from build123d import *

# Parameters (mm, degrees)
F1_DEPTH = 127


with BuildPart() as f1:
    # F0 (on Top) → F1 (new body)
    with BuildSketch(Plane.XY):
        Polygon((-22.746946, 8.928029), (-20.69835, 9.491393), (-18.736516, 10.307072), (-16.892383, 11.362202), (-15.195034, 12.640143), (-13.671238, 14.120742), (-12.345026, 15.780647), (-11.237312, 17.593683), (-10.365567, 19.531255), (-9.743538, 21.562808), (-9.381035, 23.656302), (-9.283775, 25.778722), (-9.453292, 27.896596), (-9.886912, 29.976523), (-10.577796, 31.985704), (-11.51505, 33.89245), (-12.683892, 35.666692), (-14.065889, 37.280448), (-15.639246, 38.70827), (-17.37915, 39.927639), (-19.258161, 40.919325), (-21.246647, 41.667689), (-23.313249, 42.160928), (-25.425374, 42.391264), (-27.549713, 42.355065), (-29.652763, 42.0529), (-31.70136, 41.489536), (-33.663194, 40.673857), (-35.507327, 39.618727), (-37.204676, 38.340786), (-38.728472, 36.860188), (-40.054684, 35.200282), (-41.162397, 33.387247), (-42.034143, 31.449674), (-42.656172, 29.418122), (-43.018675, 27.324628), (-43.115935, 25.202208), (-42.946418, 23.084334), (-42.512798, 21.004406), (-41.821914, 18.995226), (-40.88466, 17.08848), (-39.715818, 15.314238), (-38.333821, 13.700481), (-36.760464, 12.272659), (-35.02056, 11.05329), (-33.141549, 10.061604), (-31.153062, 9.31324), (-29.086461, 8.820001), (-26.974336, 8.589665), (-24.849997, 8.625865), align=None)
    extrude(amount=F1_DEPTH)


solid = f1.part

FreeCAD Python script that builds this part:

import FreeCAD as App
import Part
import Sketcher

V = App.Vector
Q = App.Units.Quantity

doc = App.newDocument("Part")
body = doc.addObject("PartDesign::Body", "Body")

# Sketch on XY plane
sketch1 = body.newObject("Sketcher::SketchObject", "Sketch")
sketch1.AttachmentSupport = (doc.getObject("XY_Plane"), [""])
sketch1.MapMode = "FlatFace"
sketch1.addGeometry([
    Part.LineSegment(V(-22.746946, 8.928029, 0), V(-20.69835, 9.491393, 0)),  # 0
    Part.LineSegment(V(-20.69835, 9.491393, 0), V(-18.736516, 10.307072, 0)),  # 1
    Part.LineSegment(V(-18.736516, 10.307072, 0), V(-16.892383, 11.362202, 0)),  # 2
    Part.LineSegment(V(-16.892383, 11.362202, 0), V(-15.195034, 12.640143, 0)),  # 3
    Part.LineSegment(V(-15.195034, 12.640143, 0), V(-13.671238, 14.120742, 0)),  # 4
    Part.LineSegment(V(-13.671238, 14.120742, 0), V(-12.345026, 15.780647, 0)),  # 5
    Part.LineSegment(V(-12.345026, 15.780647, 0), V(-11.237312, 17.593683, 0)),  # 6
    Part.LineSegment(V(-11.237312, 17.593683, 0), V(-10.365567, 19.531255, 0)),  # 7
    Part.LineSegment(V(-10.365567, 19.531255, 0), V(-9.743538, 21.562808, 0)),  # 8
    Part.LineSegment(V(-9.743538, 21.562808, 0), V(-9.381035, 23.656302, 0)),  # 9
    Part.LineSegment(V(-9.381035, 23.656302, 0), V(-9.283775, 25.778722, 0)),  # 10
    Part.LineSegment(V(-9.283775, 25.778722, 0), V(-9.453292, 27.896596, 0)),  # 11
    Part.LineSegment(V(-9.453292, 27.896596, 0), V(-9.886912, 29.976523, 0)),  # 12
    Part.LineSegment(V(-9.886912, 29.976523, 0), V(-10.577796, 31.985704, 0)),  # 13
    Part.LineSegment(V(-10.577796, 31.985704, 0), V(-11.51505, 33.89245, 0)),  # 14
    Part.LineSegment(V(-11.51505, 33.89245, 0), V(-12.683892, 35.666692, 0)),  # 15
    Part.LineSegment(V(-12.683892, 35.666692, 0), V(-14.065889, 37.280448, 0)),  # 16
    Part.LineSegment(V(-14.065889, 37.280448, 0), V(-15.639246, 38.70827, 0)),  # 17
    Part.LineSegment(V(-15.639246, 38.70827, 0), V(-17.37915, 39.927639, 0)),  # 18
    Part.LineSegment(V(-17.37915, 39.927639, 0), V(-19.258161, 40.919325, 0)),  # 19
    Part.LineSegment(V(-19.258161, 40.919325, 0), V(-21.246647, 41.667689, 0)),  # 20
    Part.LineSegment(V(-21.246647, 41.667689, 0), V(-23.313249, 42.160928, 0)),  # 21
    Part.LineSegment(V(-23.313249, 42.160928, 0), V(-25.425374, 42.391264, 0)),  # 22
    Part.LineSegment(V(-25.425374, 42.391264, 0), V(-27.549713, 42.355065, 0)),  # 23
    Part.LineSegment(V(-27.549713, 42.355065, 0), V(-29.652763, 42.0529, 0)),  # 24
    Part.LineSegment(V(-29.652763, 42.0529, 0), V(-31.70136, 41.489536, 0)),  # 25
    Part.LineSegment(V(-31.70136, 41.489536, 0), V(-33.663194, 40.673857, 0)),  # 26
    Part.LineSegment(V(-33.663194, 40.673857, 0), V(-35.507327, 39.618727, 0)),  # 27
    Part.LineSegment(V(-35.507327, 39.618727, 0), V(-37.204676, 38.340786, 0)),  # 28
    Part.LineSegment(V(-37.204676, 38.340786, 0), V(-38.728472, 36.860188, 0)),  # 29
    Part.LineSegment(V(-38.728472, 36.860188, 0), V(-40.054684, 35.200282, 0)),  # 30
    Part.LineSegment(V(-40.054684, 35.200282, 0), V(-41.162397, 33.387247, 0)),  # 31
    Part.LineSegment(V(-41.162397, 33.387247, 0), V(-42.034143, 31.449674, 0)),  # 32
    Part.LineSegment(V(-42.034143, 31.449674, 0), V(-42.656172, 29.418122, 0)),  # 33
    Part.LineSegment(V(-42.656172, 29.418122, 0), V(-43.018675, 27.324628, 0)),  # 34
    Part.LineSegment(V(-43.018675, 27.324628, 0), V(-43.115935, 25.202208, 0)),  # 35
    Part.LineSegment(V(-43.115935, 25.202208, 0), V(-42.946418, 23.084334, 0)),  # 36
    Part.LineSegment(V(-42.946418, 23.084334, 0), V(-42.512798, 21.004406, 0)),  # 37
    Part.LineSegment(V(-42.512798, 21.004406, 0), V(-41.821914, 18.995226, 0)),  # 38
    Part.LineSegment(V(-41.821914, 18.995226, 0), V(-40.88466, 17.08848, 0)),  # 39
    Part.LineSegment(V(-40.88466, 17.08848, 0), V(-39.715818, 15.314238, 0)),  # 40
    Part.LineSegment(V(-39.715818, 15.314238, 0), V(-38.333821, 13.700481, 0)),  # 41
    Part.LineSegment(V(-38.333821, 13.700481, 0), V(-36.760464, 12.272659, 0)),  # 42
    Part.LineSegment(V(-36.760464, 12.272659, 0), V(-35.02056, 11.05329, 0)),  # 43
    Part.LineSegment(V(-35.02056, 11.05329, 0), V(-33.141549, 10.061604, 0)),  # 44
    Part.LineSegment(V(-33.141549, 10.061604, 0), V(-31.153062, 9.31324, 0)),  # 45
    Part.LineSegment(V(-31.153062, 9.31324, 0), V(-29.086461, 8.820001, 0)),  # 46
    Part.LineSegment(V(-29.086461, 8.820001, 0), V(-26.974336, 8.589665, 0)),  # 47
    Part.LineSegment(V(-26.974336, 8.589665, 0), V(-24.849997, 8.625865, 0)),  # 48
    Part.LineSegment(V(-24.849997, 8.625865, 0), V(-22.746946, 8.928029, 0)),  # 49
], False)
sketch1.addConstraint([
    Sketcher.Constraint("Coincident", 0, 2, 1, 1),
    Sketcher.Constraint("Coincident", 1, 2, 2, 1),
    Sketcher.Constraint("Coincident", 2, 2, 3, 1),
    Sketcher.Constraint("Coincident", 3, 2, 4, 1),
    Sketcher.Constraint("Coincident", 4, 2, 5, 1),
    Sketcher.Constraint("Coincident", 5, 2, 6, 1),
    Sketcher.Constraint("Coincident", 6, 2, 7, 1),
    Sketcher.Constraint("Coincident", 7, 2, 8, 1),
    Sketcher.Constraint("Coincident", 8, 2, 9, 1),
    Sketcher.Constraint("Coincident", 9, 2, 10, 1),
    Sketcher.Constraint("Coincident", 10, 2, 11, 1),
    Sketcher.Constraint("Coincident", 11, 2, 12, 1),
    Sketcher.Constraint("Coincident", 12, 2, 13, 1),
    Sketcher.Constraint("Coincident", 13, 2, 14, 1),
    Sketcher.Constraint("Coincident", 14, 2, 15, 1),
    Sketcher.Constraint("Coincident", 15, 2, 16, 1),
    Sketcher.Constraint("Coincident", 16, 2, 17, 1),
    Sketcher.Constraint("Coincident", 17, 2, 18, 1),
    Sketcher.Constraint("Coincident", 18, 2, 19, 1),
    Sketcher.Constraint("Coincident", 19, 2, 20, 1),
    Sketcher.Constraint("Coincident", 20, 2, 21, 1),
    Sketcher.Constraint("Coincident", 21, 2, 22, 1),
    Sketcher.Constraint("Coincident", 22, 2, 23, 1),
    Sketcher.Constraint("Coincident", 23, 2, 24, 1),
    Sketcher.Constraint("Coincident", 24, 2, 25, 1),
    Sketcher.Constraint("Coincident", 25, 2, 26, 1),
    Sketcher.Constraint("Coincident", 26, 2, 27, 1),
    Sketcher.Constraint("Coincident", 27, 2, 28, 1),
    Sketcher.Constraint("Coincident", 28, 2, 29, 1),
    Sketcher.Constraint("Coincident", 29, 2, 30, 1),
    Sketcher.Constraint("Coincident", 30, 2, 31, 1),
    Sketcher.Constraint("Coincident", 31, 2, 32, 1),
    Sketcher.Constraint("Coincident", 32, 2, 33, 1),
    Sketcher.Constraint("Coincident", 33, 2, 34, 1),
    Sketcher.Constraint("Coincident", 34, 2, 35, 1),
    Sketcher.Constraint("Coincident", 35, 2, 36, 1),
    Sketcher.Constraint("Coincident", 36, 2, 37, 1),
    Sketcher.Constraint("Coincident", 37, 2, 38, 1),
    Sketcher.Constraint("Coincident", 38, 2, 39, 1),
    Sketcher.Constraint("Coincident", 39, 2, 40, 1),
    Sketcher.Constraint("Coincident", 40, 2, 41, 1),
    Sketcher.Constraint("Coincident", 41, 2, 42, 1),
    Sketcher.Constraint("Coincident", 42, 2, 43, 1),
    Sketcher.Constraint("Coincident", 43, 2, 44, 1),
    Sketcher.Constraint("Coincident", 44, 2, 45, 1),
    Sketcher.Constraint("Coincident", 45, 2, 46, 1),
    Sketcher.Constraint("Coincident", 46, 2, 47, 1),
    Sketcher.Constraint("Coincident", 47, 2, 48, 1),
    Sketcher.Constraint("Coincident", 48, 2, 49, 1),
    Sketcher.Constraint("Coincident", 49, 2, 0, 1),
    Sketcher.Constraint("DistanceX", 13, 2, 12, 2, Q("0.0272002 in")),
    Sketcher.Constraint("DistanceX", 14, 2, 12, 2, Q("0.0640999 in")),
    Sketcher.Constraint("DistanceX", 18, 2, 17, 2, Q("0.0685002 in")),
    Sketcher.Constraint("DistanceX", 37, 2, 38, 2, Q("0.0272002 in")),
    Sketcher.Constraint("DistanceX", 37, 2, 39, 2, Q("0.0640999 in")),
    Sketcher.Constraint("DistanceX", 42, 2, 43, 2, Q("0.0685002 in")),
    Sketcher.Constraint("DistanceY", -1, 1, 9, 2, 23.656302),
    Sketcher.Constraint("DistanceY", -1, 1, 24, 2, 42.0529),
    Sketcher.Constraint("DistanceY", -1, 1, 46, 2, 8.820001),
    Sketcher.Constraint("DistanceY", 3, 2, 4, 2, 1.480599),
    Sketcher.Constraint("DistanceX", 4, 2, 8, 2, 3.9277),
    Sketcher.Constraint("DistanceY", 10, 2, 12, 2, 4.197801),
    Sketcher.Constraint("DistanceY", 9, 2, 13, 2, 8.329402),
    Sketcher.Constraint("DistanceX", 15, 2, 11, 2, 3.2306),
    Sketcher.Constraint("DistanceY", 14, 2, 16, 2, 3.387998),
    Sketcher.Constraint("DistanceX", 18, 2, 14, 2, 5.8641),
    Sketcher.Constraint("DistanceX", 20, 2, 17, 2, 5.607401),
    Sketcher.Constraint("DistanceX", 21, 2, 20, 2, 2.066602),
    Sketcher.Constraint("DistanceY", 23, 2, 22, 2, 0.036199),
    Sketcher.Constraint("DistanceX", 24, 2, 19, 2, 10.394602),
    Sketcher.Constraint("DistanceY", 29, 2, 28, 2, 1.480598),
    Sketcher.Constraint("DistanceX", 33, 2, 29, 2, 3.9277),
    Sketcher.Constraint("DistanceY", 37, 2, 35, 2, 4.197802),
    Sketcher.Constraint("DistanceX", 36, 2, 40, 2, 3.2306),
    Sketcher.Constraint("DistanceY", 41, 2, 39, 2, 3.387999),
    Sketcher.Constraint("DistanceX", 39, 2, 43, 2, 5.8641),
    Sketcher.Constraint("DistanceX", 43, 2, 45, 2, 3.867498),
    Sketcher.Constraint("DistanceX", 45, 2, 46, 2, 2.066601),
    Sketcher.Constraint("DistanceY", 47, 2, 48, 2, 0.0362),
    Sketcher.Constraint("Distance", 6, 2.124648),
    Sketcher.Constraint("Distance", 32, 2.124648),
    Sketcher.Constraint("Distance", 45, 2.124648),
    Sketcher.Constraint("DistanceX", 0, 2, -1, 1, 20.69835),
    Sketcher.Constraint("DistanceX", 4, 2, -1, 1, 13.671238),
    Sketcher.Constraint("DistanceX", 6, 2, -1, 1, 11.237312),
    Sketcher.Constraint("DistanceY", -1, 1, 8, 2, 21.562808),
    Sketcher.Constraint("DistanceY", -1, 1, 10, 2, 25.778722),
    Sketcher.Constraint("DistanceX", 11, 2, -1, 1, 9.453292),
    Sketcher.Constraint("DistanceX", 14, 2, -1, 1, 11.51505),
    Sketcher.Constraint("DistanceY", -1, 1, 14, 2, 33.89245),
    Sketcher.Constraint("DistanceY", -1, 1, 15, 2, 35.666692),
    Sketcher.Constraint("DistanceX", 16, 2, -1, 1, 14.065889),
    Sketcher.Constraint("DistanceY", -1, 1, 17, 2, 38.70827),
    Sketcher.Constraint("DistanceY", -1, 1, 18, 2, 39.927639),
    Sketcher.Constraint("DistanceX", 19, 2, -1, 1, 19.258161),
    Sketcher.Constraint("DistanceY", -1, 1, 20, 2, 41.667689),
    Sketcher.Constraint("DistanceX", 25, 2, -1, 1, 31.70136),
    Sketcher.Constraint("DistanceX", 29, 2, -1, 1, 38.728472),
    Sketcher.Constraint("DistanceY", -1, 1, 34, 2, 27.324628),
    Sketcher.Constraint("DistanceX", 39, 2, -1, 1, 40.88466),
    Sketcher.Constraint("DistanceY", -1, 1, 39, 2, 17.08848),
    Sketcher.Constraint("DistanceX", 41, 2, -1, 1, 38.333821),
    Sketcher.Constraint("DistanceY", -1, 1, 42, 2, 12.272659),
    Sketcher.Constraint("DistanceY", -1, 1, 43, 2, 11.05329),
    Sketcher.Constraint("DistanceX", 44, 2, -1, 1, 33.141549),
    Sketcher.Constraint("DistanceY", -1, 1, 45, 2, 9.31324),
    Sketcher.Constraint("DistanceY", -1, 1, 49, 2, 8.928029),
    Sketcher.Constraint("DistanceY", 0, 2, 1, 2, 0.815679),
    Sketcher.Constraint("DistanceY", 1, 2, 2, 2, 1.05513),
    Sketcher.Constraint("DistanceX", 2, 2, 3, 2, 1.697349),
    Sketcher.Constraint("DistanceY", 2, 2, 3, 2, 1.277941),
    Sketcher.Constraint("DistanceX", 1, 2, 4, 2, 5.065278),
    Sketcher.Constraint("DistanceX", 4, 2, 5, 2, 1.326212),
    Sketcher.Constraint("DistanceY", 4, 2, 6, 2, 3.472941),
    Sketcher.Constraint("DistanceX", 2, 2, 6, 2, 5.655071),
    Sketcher.Constraint("DistanceX", 5, 2, 7, 2, 1.979459),
    Sketcher.Constraint("DistanceY", 5, 2, 7, 2, 3.750608),
    Sketcher.Constraint("DistanceY", 5, 2, 8, 2, 5.782161),
    Sketcher.Constraint("DistanceX", 7, 2, 9, 2, 0.984532),
    Sketcher.Constraint("DistanceX", 9, 2, 10, 2, 0.09726),
    Sketcher.Constraint("DistanceY", 7, 2, 11, 2, 8.365341),
    Sketcher.Constraint("DistanceY", 20, 2, 21, 2, 0.493239),
    Sketcher.Constraint("DistanceY", 19, 2, 22, 2, 1.471939),
    Sketcher.Constraint("DistanceX", 22, 2, 17, 2, 9.786128),
    Sketcher.Constraint("DistanceX", 23, 2, 22, 2, 2.124339),
    Sketcher.Constraint("DistanceY", 25, 2, 23, 2, 0.865529),
    Sketcher.Constraint("DistanceY", 25, 2, 21, 2, 0.671392),
    Sketcher.Constraint("DistanceY", 26, 2, 25, 2, 0.815679),
    Sketcher.Constraint("DistanceX", 26, 2, 24, 2, 4.010431),
    Sketcher.Constraint("DistanceY", 27, 2, 26, 2, 1.05513),
    Sketcher.Constraint("DistanceX", 28, 2, 27, 2, 1.697349),
    Sketcher.Constraint("DistanceY", 28, 2, 27, 2, 1.277941),
    Sketcher.Constraint("DistanceX", 30, 2, 28, 2, 2.850008),
    Sketcher.Constraint("DistanceX", 30, 2, 26, 2, 6.39149),
    Sketcher.Constraint("DistanceY", 31, 2, 29, 2, 3.472941),
    Sketcher.Constraint("DistanceX", 31, 2, 28, 2, 3.957721),
    Sketcher.Constraint("DistanceX", 32, 2, 30, 2, 1.979459),
    Sketcher.Constraint("DistanceY", 33, 2, 30, 2, 5.78216),
    Sketcher.Constraint("DistanceX", 34, 2, 31, 2, 1.856278),
    Sketcher.Constraint("DistanceX", 35, 2, 34, 2, 0.09726),
    Sketcher.Constraint("DistanceY", 35, 2, 34, 2, 2.12242),
    Sketcher.Constraint("DistanceY", 36, 2, 33, 2, 6.333788),
    Sketcher.Constraint("DistanceY", 36, 2, 32, 2, 8.36534),
    Sketcher.Constraint("DistanceX", 36, 2, 31, 2, 1.784021),
    Sketcher.Constraint("DistanceY", 38, 2, 37, 2, 2.00918),
    Sketcher.Constraint("DistanceY", 40, 2, 35, 2, 9.88797),
    Sketcher.Constraint("DistanceY", 47, 2, 0, 2, 0.901728),
    Sketcher.Constraint("DistanceX", 47, 2, 1, 2, 8.23782),
    Sketcher.Constraint("DistanceX", 47, 2, 48, 2, 2.124339),
    Sketcher.Constraint("DistanceX", 48, 2, 49, 2, 2.103051),
])
pad1 = body.newObject("PartDesign::Pad", "Pad")
pad1.Profile = sketch1
pad1.Length = Q("5 in")

doc.recompute()
